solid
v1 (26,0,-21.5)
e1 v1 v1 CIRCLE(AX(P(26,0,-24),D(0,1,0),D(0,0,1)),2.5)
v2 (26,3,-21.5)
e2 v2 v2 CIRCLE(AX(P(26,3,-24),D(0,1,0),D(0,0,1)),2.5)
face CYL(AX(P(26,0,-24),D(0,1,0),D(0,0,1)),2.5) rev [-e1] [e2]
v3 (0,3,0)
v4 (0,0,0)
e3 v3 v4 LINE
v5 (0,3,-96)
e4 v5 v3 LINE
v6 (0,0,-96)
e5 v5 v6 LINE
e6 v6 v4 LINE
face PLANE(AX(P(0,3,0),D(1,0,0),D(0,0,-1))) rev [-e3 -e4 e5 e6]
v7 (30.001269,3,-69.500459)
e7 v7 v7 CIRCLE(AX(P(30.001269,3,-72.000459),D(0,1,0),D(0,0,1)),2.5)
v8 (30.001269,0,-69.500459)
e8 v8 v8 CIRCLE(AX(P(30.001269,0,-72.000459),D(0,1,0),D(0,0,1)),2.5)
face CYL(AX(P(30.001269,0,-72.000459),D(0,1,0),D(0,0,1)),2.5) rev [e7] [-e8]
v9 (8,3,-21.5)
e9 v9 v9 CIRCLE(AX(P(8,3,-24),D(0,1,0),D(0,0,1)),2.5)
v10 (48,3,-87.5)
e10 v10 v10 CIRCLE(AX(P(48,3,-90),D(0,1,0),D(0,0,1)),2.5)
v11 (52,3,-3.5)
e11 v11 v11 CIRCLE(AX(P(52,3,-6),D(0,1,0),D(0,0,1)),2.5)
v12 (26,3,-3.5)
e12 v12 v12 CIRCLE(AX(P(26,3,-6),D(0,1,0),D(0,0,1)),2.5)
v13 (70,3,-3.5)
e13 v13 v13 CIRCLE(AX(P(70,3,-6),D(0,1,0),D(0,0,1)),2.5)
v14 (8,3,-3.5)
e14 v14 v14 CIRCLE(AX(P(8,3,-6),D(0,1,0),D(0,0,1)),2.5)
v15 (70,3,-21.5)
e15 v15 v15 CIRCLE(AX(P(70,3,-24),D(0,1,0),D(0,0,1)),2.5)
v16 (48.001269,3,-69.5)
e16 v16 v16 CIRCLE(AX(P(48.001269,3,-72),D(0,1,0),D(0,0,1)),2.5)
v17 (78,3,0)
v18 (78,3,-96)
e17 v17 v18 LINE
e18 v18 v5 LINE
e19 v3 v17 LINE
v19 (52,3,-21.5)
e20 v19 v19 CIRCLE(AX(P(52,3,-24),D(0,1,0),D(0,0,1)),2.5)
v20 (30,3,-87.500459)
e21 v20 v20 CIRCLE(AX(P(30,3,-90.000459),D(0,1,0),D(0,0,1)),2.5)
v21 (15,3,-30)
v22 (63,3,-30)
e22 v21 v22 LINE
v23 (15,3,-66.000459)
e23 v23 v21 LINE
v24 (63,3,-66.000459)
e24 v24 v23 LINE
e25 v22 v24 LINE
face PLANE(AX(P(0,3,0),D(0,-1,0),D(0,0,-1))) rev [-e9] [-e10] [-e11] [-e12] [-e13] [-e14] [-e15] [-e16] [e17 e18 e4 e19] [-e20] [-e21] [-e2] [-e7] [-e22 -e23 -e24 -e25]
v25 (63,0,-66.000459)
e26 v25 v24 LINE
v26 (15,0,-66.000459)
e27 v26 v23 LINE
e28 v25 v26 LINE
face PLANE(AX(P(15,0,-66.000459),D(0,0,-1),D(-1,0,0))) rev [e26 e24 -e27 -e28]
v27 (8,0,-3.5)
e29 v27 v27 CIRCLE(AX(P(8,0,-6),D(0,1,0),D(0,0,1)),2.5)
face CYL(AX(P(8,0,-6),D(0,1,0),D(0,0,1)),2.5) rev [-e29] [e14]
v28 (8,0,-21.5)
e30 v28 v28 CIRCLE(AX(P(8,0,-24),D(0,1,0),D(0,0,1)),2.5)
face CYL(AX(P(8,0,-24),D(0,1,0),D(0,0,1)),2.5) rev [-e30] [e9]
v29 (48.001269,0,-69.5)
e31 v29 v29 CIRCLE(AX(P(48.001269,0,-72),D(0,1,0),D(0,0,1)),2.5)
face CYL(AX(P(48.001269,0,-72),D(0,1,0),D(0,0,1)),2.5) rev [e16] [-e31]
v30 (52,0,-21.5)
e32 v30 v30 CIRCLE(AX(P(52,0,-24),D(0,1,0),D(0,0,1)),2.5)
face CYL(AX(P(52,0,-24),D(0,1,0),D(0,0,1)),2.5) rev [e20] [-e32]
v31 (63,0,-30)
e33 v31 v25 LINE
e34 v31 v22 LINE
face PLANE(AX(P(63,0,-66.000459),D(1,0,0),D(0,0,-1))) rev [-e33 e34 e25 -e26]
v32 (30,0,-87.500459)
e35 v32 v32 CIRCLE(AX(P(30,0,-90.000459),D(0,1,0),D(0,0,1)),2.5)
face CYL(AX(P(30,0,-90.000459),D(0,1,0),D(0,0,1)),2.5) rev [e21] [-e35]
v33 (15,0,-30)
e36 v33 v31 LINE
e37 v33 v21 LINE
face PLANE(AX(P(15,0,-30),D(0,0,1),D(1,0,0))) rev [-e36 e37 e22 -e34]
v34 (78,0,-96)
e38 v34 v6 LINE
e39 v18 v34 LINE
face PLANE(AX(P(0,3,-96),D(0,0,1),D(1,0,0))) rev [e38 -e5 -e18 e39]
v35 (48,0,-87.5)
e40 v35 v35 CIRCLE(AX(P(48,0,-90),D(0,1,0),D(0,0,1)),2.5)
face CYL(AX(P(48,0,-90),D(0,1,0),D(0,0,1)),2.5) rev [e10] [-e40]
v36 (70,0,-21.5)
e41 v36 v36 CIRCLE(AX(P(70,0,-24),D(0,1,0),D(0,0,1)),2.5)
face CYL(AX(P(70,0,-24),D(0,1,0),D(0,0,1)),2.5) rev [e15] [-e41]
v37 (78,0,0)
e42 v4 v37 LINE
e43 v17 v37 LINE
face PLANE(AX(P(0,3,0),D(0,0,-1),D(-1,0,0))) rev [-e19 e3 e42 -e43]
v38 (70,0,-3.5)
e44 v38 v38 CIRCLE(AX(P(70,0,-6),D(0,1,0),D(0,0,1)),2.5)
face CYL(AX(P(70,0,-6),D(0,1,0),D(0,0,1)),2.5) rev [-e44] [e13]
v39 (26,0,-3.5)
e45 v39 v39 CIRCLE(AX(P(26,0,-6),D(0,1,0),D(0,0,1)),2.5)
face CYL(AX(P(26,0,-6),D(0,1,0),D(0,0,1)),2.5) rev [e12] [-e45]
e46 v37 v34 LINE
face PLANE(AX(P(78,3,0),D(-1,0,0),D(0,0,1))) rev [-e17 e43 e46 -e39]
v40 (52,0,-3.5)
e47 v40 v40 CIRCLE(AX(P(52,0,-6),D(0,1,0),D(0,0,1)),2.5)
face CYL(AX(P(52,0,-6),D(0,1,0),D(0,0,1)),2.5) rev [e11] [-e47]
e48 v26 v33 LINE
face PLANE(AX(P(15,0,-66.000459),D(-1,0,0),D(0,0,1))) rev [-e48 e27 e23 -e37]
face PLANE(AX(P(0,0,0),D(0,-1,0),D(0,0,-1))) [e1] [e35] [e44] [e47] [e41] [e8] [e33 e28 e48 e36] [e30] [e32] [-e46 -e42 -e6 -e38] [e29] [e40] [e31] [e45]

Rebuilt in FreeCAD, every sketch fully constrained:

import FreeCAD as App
import Part
import Sketcher

doc = App.newDocument("Part")
body = doc.addObject("PartDesign::Body", "Body")

# Sketch on XZ plane
sketch1 = body.newObject("Sketcher::SketchObject", "Sketch")
sketch1.AttachmentSupport = (doc.getObject("XZ_Plane"), [""])
sketch1.MapMode = "FlatFace"
sketch1.addGeometry([
    Part.LineSegment(App.Vector(0, -96, 0), App.Vector(0, 0, 0)),
    Part.LineSegment(App.Vector(0, 0, 0), App.Vector(78, 0, 0)),
    Part.LineSegment(App.Vector(78, 0, 0), App.Vector(78, -96, 0)),
    Part.LineSegment(App.Vector(78, -96, 0), App.Vector(0, -96, 0)),
], False)
sketch1.addConstraint([
    Sketcher.Constraint("Coincident", 0, 2, 1, 1),
    Sketcher.Constraint("Coincident", 1, 2, 2, 1),
    Sketcher.Constraint("Coincident", 2, 2, 3, 1),
    Sketcher.Constraint("Coincident", 3, 2, 0, 1),
    Sketcher.Constraint("Vertical", 0),
    Sketcher.Constraint("Horizontal", 1),
    Sketcher.Constraint("Vertical", 2),
    Sketcher.Constraint("Horizontal", 3),
    Sketcher.Constraint("Coincident", 0, 2, -1, 1),
    Sketcher.Constraint("DistanceX", 1, 1, 1, 2, 78.0),
    Sketcher.Constraint("DistanceY", 0, 1, 0, 2, 96.0),
])
pad1 = body.newObject("PartDesign::Pad", "Pad")
pad1.Profile = sketch1
pad1.Length = 3
pad1.Reversed = True

# Sketch on XZ plane
sketch2 = body.newObject("Sketcher::SketchObject", "Sketch001")
sketch2.AttachmentSupport = (doc.getObject("XZ_Plane"), [""])
sketch2.MapMode = "FlatFace"
sketch2.AttachmentOffset = App.Placement(App.Vector(0, 0, -3), App.Rotation())
sketch2.addGeometry([
    Part.Circle(App.Vector(8, -6, 0), App.Vector(0, 0, 1), 2.5),  # 0
    Part.Circle(App.Vector(26, -6, 0), App.Vector(0, 0, 1), 2.5),  # 1
    Part.Circle(App.Vector(8, -24, 0), App.Vector(0, 0, 1), 2.5),  # 2
    Part.Circle(App.Vector(26, -24, 0), App.Vector(0, 0, 1), 2.5),  # 3
    Part.Circle(App.Vector(52, -6, 0), App.Vector(0, 0, 1), 2.5),  # 4
    Part.Circle(App.Vector(70, -6, 0), App.Vector(0, 0, 1), 2.5),  # 5
    Part.Circle(App.Vector(70, -24, 0), App.Vector(0, 0, 1), 2.5),  # 6
    Part.Circle(App.Vector(52, -24, 0), App.Vector(0, 0, 1), 2.5),  # 7
    Part.Circle(App.Vector(48, -72, 0), App.Vector(0, 0, 1), 2.5),  # 8
    Part.Circle(App.Vector(30, -72, 0), App.Vector(0, 0, 1), 2.5),  # 9
    Part.Circle(App.Vector(48, -90, 0), App.Vector(0, 0, 1), 2.5),  # 10
    Part.Circle(App.Vector(30, -90, 0), App.Vector(0, 0, 1), 2.5),  # 11
], False)
sketch2.addConstraint([
    Sketcher.Constraint("Equal", 0, 1),
    Sketcher.Constraint("Equal", 1, 2),
    Sketcher.Constraint("Equal", 2, 3),
    Sketcher.Constraint("Equal", 3, 4),
    Sketcher.Constraint("Equal", 4, 5),
    Sketcher.Constraint("Equal", 5, 6),
    Sketcher.Constraint("Equal", 6, 7),
    Sketcher.Constraint("Equal", 7, 8),
    Sketcher.Constraint("Equal", 8, 9),
    Sketcher.Constraint("Equal", 9, 10),
    Sketcher.Constraint("Equal", 10, 11),
    Sketcher.Constraint("Horizontal", 0, 3, 1, 3),
    Sketcher.Constraint("Horizontal", 2, 3, 3, 3),
    Sketcher.Constraint("Horizontal", 1, 3, 4, 3),
    Sketcher.Constraint("Horizontal", 4, 3, 5, 3),
    Sketcher.Constraint("Horizontal", 3, 3, 6, 3),
    Sketcher.Constraint("Horizontal", 6, 3, 7, 3),
    Sketcher.Constraint("Vertical", 0, 3, 2, 3),
    Sketcher.Constraint("Vertical", 1, 3, 3, 3),
    Sketcher.Constraint("Vertical", 5, 3, 6, 3),
    Sketcher.Constraint("Vertical", 4, 3, 7, 3),
    Sketcher.Constraint("Diameter", 0, 5.0),
    Sketcher.Constraint("DistanceX", -1, 1, 0, 3, 8.0),
    Sketcher.Constraint("DistanceY", 0, 3, -1, 1, 6.0),
    Sketcher.Constraint("DistanceX", -1, 1, 1, 3, 26.0),
    Sketcher.Constraint("DistanceY", 2, 3, -1, 1, 24.0),
    Sketcher.Constraint("DistanceX", -1, 1, 4, 3, 52.0),
    Sketcher.Constraint("DistanceX", -1, 1, 5, 3, 70.0),
    Sketcher.Constraint("DistanceY", 8, 3, -1, 1, 72.0),
    Sketcher.Constraint("DistanceX", -1, 1, 10, 3, 48.0),
    Sketcher.Constraint("DistanceY", 10, 3, -1, 1, 90.0),
    Sketcher.Constraint("DistanceX", -1, 1, 11, 3, 30.0),
    Sketcher.Constraint("DistanceX", 9, 3, 8, 3, 18.0),
    Sketcher.Constraint("DistanceY", 11, 3, 9, 3, 18.0),
    Sketcher.Constraint("DistanceX", -1, 1, 8, 3, 48.001269),
    Sketcher.Constraint("DistanceY", 9, 3, -1, 1, 72.000459),
])
pocket1 = body.newObject("PartDesign::Pocket", "Pocket")
pocket1.Profile = sketch2
pocket1.Length = 3
pocket1.Reversed = True

# Sketch on XZ plane
sketch3 = body.newObject("Sketcher::SketchObject", "Sketch002")
sketch3.AttachmentSupport = (doc.getObject("XZ_Plane"), [""])
sketch3.MapMode = "FlatFace"
sketch3.AttachmentOffset = App.Placement(App.Vector(0, 0, -3), App.Rotation())
sketch3.addGeometry([
    Part.LineSegment(App.Vector(15, -66, 0), App.Vector(15, -30, 0)),
    Part.LineSegment(App.Vector(15, -30, 0), App.Vector(63, -30, 0)),
    Part.LineSegment(App.Vector(63, -30, 0), App.Vector(63, -66, 0)),
    Part.LineSegment(App.Vector(63, -66, 0), App.Vector(15, -66, 0)),
], False)
sketch3.addConstraint([
    Sketcher.Constraint("Coincident", 0, 2, 1, 1),
    Sketcher.Constraint("Coincident", 1, 2, 2, 1),
    Sketcher.Constraint("Coincident", 2, 2, 3, 1),
    Sketcher.Constraint("Coincident", 3, 2, 0, 1),
    Sketcher.Constraint("Vertical", 0),
    Sketcher.Constraint("Horizontal", 1),
    Sketcher.Constraint("Vertical", 2),
    Sketcher.Constraint("Horizontal", 3),
    Sketcher.Constraint("DistanceX", 1, 1, 1, 2, 48.0),
    Sketcher.Constraint("DistanceX", -1, 1, 0, 2, 15.0),
    Sketcher.Constraint("DistanceY", 0, 2, -1, 1, 30.0),
    Sketcher.Constraint("DistanceY", 0, 1, 0, 2, 36.000459),
])
pocket2 = body.newObject("PartDesign::Pocket", "Pocket001")
pocket2.Profile = sketch3
pocket2.Length = 3
pocket2.Reversed = True

doc.recompute()
